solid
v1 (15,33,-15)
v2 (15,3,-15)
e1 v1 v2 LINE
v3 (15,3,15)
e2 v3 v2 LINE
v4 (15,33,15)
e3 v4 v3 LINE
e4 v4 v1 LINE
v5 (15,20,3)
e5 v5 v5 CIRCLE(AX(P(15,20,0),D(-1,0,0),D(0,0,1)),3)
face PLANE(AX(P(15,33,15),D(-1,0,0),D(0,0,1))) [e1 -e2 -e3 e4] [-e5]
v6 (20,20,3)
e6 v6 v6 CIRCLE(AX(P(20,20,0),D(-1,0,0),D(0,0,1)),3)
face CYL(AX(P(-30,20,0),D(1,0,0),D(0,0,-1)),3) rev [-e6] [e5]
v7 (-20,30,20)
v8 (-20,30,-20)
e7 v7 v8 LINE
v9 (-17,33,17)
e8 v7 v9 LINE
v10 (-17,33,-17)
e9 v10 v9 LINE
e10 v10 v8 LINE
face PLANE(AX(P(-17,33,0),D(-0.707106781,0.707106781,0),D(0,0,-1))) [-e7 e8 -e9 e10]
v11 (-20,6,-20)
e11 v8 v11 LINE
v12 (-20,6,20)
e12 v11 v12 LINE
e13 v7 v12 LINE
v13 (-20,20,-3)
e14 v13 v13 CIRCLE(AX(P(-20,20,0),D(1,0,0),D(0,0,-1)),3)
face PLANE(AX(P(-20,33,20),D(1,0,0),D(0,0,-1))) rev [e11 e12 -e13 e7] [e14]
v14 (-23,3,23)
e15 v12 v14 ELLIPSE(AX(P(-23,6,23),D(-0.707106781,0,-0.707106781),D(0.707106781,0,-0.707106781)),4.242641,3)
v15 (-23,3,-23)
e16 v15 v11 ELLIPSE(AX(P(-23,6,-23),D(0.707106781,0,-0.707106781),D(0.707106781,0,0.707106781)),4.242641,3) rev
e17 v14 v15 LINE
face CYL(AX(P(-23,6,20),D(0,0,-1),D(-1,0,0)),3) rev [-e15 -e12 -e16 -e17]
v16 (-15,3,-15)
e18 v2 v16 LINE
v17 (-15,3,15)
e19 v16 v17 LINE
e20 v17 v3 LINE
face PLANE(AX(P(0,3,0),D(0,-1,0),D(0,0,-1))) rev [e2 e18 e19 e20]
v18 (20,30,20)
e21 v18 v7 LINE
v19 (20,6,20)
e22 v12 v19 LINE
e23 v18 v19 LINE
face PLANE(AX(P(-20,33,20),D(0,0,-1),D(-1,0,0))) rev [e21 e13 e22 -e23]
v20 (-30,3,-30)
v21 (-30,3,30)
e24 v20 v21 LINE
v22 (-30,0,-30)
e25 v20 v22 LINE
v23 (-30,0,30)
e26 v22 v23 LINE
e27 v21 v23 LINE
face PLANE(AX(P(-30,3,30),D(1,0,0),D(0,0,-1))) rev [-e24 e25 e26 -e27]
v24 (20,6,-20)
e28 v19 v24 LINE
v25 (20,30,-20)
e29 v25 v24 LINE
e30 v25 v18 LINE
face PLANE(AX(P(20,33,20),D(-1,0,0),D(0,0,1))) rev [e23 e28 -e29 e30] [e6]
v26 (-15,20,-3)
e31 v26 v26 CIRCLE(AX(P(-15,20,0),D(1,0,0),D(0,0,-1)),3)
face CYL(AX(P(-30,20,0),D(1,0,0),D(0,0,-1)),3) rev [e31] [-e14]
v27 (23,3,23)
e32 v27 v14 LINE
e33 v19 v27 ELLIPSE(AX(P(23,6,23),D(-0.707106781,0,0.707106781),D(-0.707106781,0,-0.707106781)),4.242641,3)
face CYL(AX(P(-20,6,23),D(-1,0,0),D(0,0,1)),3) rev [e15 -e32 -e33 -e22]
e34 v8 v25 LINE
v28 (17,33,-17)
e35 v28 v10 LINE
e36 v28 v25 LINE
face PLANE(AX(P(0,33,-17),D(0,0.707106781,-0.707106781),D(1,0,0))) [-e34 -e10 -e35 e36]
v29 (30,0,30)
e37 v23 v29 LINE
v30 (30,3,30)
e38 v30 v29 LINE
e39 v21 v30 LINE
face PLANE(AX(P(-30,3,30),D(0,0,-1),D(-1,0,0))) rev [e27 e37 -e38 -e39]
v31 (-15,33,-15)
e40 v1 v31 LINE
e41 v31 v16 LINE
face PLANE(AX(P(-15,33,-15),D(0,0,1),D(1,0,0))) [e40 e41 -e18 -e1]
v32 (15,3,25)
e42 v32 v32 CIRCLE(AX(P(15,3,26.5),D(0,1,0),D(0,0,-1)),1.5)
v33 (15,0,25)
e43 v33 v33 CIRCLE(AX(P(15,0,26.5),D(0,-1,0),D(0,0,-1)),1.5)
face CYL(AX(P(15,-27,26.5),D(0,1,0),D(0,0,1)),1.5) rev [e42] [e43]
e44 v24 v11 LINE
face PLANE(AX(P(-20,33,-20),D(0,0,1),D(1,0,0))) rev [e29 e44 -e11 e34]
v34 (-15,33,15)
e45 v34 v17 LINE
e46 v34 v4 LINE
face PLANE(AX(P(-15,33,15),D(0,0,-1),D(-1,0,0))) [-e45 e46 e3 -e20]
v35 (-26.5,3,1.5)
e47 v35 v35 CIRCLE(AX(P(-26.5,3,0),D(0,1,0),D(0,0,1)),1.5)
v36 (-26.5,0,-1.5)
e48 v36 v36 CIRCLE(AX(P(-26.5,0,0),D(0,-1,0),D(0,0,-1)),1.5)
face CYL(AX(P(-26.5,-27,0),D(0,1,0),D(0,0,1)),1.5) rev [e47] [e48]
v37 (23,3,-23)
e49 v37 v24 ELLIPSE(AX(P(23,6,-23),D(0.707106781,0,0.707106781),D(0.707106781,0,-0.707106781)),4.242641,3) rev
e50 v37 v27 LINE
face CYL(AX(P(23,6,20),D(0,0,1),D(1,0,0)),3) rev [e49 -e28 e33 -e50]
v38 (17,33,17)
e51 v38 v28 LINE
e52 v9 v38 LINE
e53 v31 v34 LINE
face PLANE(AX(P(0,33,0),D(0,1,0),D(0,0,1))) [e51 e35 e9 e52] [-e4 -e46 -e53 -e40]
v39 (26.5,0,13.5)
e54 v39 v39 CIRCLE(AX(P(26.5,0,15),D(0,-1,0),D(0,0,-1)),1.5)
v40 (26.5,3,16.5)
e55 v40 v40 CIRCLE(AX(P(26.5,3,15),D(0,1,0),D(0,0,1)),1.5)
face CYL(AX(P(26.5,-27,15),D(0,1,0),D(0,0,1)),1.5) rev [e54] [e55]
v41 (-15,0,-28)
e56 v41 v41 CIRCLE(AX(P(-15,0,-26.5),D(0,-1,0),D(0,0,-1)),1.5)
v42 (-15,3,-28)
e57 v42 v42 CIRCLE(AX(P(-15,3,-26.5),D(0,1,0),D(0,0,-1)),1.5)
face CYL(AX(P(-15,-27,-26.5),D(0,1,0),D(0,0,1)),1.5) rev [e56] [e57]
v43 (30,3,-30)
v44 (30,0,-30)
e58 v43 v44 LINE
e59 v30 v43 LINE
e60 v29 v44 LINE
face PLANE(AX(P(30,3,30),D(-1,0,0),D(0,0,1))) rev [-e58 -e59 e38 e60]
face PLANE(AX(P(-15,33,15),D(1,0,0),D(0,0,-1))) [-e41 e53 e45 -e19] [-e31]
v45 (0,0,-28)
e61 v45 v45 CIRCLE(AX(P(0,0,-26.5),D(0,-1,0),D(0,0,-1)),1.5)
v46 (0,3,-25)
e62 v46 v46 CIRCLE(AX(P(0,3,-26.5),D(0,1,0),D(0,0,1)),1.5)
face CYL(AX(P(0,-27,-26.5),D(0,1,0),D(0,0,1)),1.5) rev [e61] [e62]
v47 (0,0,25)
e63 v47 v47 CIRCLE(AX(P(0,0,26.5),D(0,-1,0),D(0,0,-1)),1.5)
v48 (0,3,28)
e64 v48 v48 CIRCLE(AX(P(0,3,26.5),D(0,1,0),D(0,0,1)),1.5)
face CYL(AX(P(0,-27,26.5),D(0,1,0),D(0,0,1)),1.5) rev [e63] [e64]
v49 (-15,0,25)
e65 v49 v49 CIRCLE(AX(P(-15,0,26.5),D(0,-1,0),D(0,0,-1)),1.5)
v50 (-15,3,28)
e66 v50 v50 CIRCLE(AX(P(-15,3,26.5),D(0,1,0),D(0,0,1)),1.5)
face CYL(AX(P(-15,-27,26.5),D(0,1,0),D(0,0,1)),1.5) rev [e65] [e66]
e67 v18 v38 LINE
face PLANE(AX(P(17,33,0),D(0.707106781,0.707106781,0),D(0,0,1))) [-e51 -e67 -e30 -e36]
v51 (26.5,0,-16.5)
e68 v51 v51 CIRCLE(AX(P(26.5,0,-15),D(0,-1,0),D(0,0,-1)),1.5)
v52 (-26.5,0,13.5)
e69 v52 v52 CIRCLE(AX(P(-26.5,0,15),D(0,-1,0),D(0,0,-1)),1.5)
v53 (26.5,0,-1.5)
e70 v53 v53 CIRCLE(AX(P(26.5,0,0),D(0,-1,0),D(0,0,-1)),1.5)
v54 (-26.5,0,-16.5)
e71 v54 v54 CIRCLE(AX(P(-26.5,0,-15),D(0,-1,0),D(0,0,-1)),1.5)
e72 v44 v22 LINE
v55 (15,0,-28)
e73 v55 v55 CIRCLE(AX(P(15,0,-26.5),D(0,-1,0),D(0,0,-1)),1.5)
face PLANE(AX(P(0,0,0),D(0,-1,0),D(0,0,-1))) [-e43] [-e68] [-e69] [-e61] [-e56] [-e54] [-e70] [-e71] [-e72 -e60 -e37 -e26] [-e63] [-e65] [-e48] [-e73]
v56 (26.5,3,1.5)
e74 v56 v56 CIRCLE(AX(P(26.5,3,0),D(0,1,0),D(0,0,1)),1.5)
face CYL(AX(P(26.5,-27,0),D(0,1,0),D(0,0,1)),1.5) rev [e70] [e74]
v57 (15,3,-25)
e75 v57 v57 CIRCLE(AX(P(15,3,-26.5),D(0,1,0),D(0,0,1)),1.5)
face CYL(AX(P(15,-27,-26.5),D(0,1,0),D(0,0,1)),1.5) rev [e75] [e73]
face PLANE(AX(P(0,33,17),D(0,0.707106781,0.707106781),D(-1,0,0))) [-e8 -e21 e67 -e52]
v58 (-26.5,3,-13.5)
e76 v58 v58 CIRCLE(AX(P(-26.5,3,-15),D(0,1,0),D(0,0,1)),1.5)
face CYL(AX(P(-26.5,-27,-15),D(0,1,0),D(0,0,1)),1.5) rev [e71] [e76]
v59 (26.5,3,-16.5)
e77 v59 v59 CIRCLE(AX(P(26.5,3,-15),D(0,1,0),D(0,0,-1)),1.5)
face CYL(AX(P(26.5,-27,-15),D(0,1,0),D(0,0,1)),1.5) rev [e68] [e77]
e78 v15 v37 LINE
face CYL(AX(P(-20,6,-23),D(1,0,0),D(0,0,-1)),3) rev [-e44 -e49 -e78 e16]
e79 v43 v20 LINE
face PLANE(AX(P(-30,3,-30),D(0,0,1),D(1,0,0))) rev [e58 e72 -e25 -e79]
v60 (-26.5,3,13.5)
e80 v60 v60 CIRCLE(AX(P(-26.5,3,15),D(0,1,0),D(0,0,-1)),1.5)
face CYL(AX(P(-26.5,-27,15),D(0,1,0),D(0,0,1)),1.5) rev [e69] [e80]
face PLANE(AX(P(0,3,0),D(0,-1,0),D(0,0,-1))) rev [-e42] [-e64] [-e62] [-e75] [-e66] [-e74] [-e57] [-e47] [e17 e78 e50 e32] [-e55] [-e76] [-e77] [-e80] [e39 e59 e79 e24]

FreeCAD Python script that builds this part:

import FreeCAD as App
import Part
import Sketcher
from FreeCAD import Vector


def edges_at(feature, points):
    """Names of the edges that pass closest to the given points."""
    edges = feature.Shape.Edges
    near = lambda p: min(range(len(edges)), key=lambda i: edges[i].distToShape(Part.Vertex(*p))[0])
    return sorted({f"Edge{near(p) + 1}" for p in points})


def add_polygon(sketch, points):
    """Adds a closed chain of lines whose ends are joined by coincident constraints."""
    first, n = sketch.GeometryCount, len(points)
    for a, b in zip(points, points[1:] + points[:1]):
        sketch.addGeometry(Part.LineSegment(App.Vector(*a, 0), App.Vector(*b, 0)), False)
    for i in range(n):
        sketch.addConstraint(Sketcher.Constraint("Coincident", first + i, 2, first + (i + 1) % n, 1))

doc = App.newDocument("Part")
body = doc.addObject("PartDesign::Body", "Body")

sketch1 = body.newObject("Sketcher::SketchObject", "Sketch")
sketch1.AttachmentSupport = (doc.getObject("XZ_Plane"), [""])
sketch1.MapMode = "FlatFace"
add_polygon(sketch1, [(-30, -30), (-30, 30), (30, 30), (30, -30)])
sketch1.addConstraint(Sketcher.Constraint("Vertical", 0))
sketch1.addConstraint(Sketcher.Constraint("Horizontal", 1))
sketch1.addConstraint(Sketcher.Constraint("Vertical", 2))
sketch1.addConstraint(Sketcher.Constraint("Horizontal", 3))
sketch1.addConstraint(Sketcher.Constraint("Symmetric", 0, 2, 2, 2, -1, 1))
sketch1.addConstraint(Sketcher.Constraint("Equal", 3, 0))
sketch1.addConstraint(Sketcher.Constraint("DistanceX", 1, 1, 1, 2, 60.0))
pad1 = body.newObject("PartDesign::Pad", "Pad")
pad1.Profile = sketch1
pad1.Length = 3
pad1.Reversed = True

sketch2 = body.newObject("Sketcher::SketchObject", "Sketch001")
sketch2.AttachmentSupport = (doc.getObject("XZ_Plane"), [""])
sketch2.MapMode = "FlatFace"
sketch2.AttachmentOffset = App.Placement(Vector(0, 0, -3), App.Rotation())
add_polygon(sketch2, [(-20, -20), (-20, 20), (20, 20), (20, -20)])
add_polygon(sketch2, [(15, 15), (-15, 15), (-15, -15), (15, -15)])
sketch2.addConstraint(Sketcher.Constraint("Vertical", 0))
sketch2.addConstraint(Sketcher.Constraint("Horizontal", 1))
sketch2.addConstraint(Sketcher.Constraint("Vertical", 2))
sketch2.addConstraint(Sketcher.Constraint("Horizontal", 3))
sketch2.addConstraint(Sketcher.Constraint("Horizontal", 4))
sketch2.addConstraint(Sketcher.Constraint("Vertical", 5))
sketch2.addConstraint(Sketcher.Constraint("Horizontal", 6))
sketch2.addConstraint(Sketcher.Constraint("Vertical", 7))
sketch2.addConstraint(Sketcher.Constraint("Symmetric", 0, 2, 2, 2, -1, 1))
sketch2.addConstraint(Sketcher.Constraint("Symmetric", 4, 2, 6, 2, -1, 1))
sketch2.addConstraint(Sketcher.Constraint("Equal", 3, 0))
sketch2.addConstraint(Sketcher.Constraint("Equal", 6, 5))
sketch2.addConstraint(Sketcher.Constraint("DistanceX", 1, 1, 1, 2, 40.0))
sketch2.addConstraint(Sketcher.Constraint("DistanceX", 4, 2, 4, 1, 30.0))
pad2 = body.newObject("PartDesign::Pad", "Pad001")
pad2.Profile = sketch2
pad2.Length = 30
pad2.Reversed = True
doc.recompute()

chamfer = body.newObject("PartDesign::Chamfer", "Chamfer")
chamfer.Base = (pad2, edges_at(pad2, [
    (0, 33, 20),
    (20, 33, 0),
    (0, 33, -20),
    (-20, 33, 0),
]))
chamfer.Size = 3
doc.recompute()

fillet = body.newObject("PartDesign::Fillet", "Fillet")
fillet.Base = (chamfer, edges_at(chamfer, [
    (0, 3, 20),
    (20, 3, 0),
    (0, 3, -20),
    (-20, 3, 0),
]))
fillet.Radius = 3

sketch3 = body.newObject("Sketcher::SketchObject", "Sketch002")
sketch3.AttachmentSupport = (doc.getObject("XZ_Plane"), [""])
sketch3.MapMode = "FlatFace"
sketch3.AttachmentOffset = App.Placement(Vector(0, 0, -3), App.Rotation())
sketch3.addGeometry(Part.Circle(Vector(0, -26.5, 0), Vector(0, 0, 1), 1.5), False)
sketch3.addGeometry(Part.Circle(Vector(15, -26.5, 0), Vector(0, 0, 1), 1.5), False)
sketch3.addGeometry(Part.Circle(Vector(-15, -26.5, 0), Vector(0, 0, 1), 1.5), False)
sketch3.addGeometry(Part.Circle(Vector(26.5, -15, 0), Vector(0, 0, 1), 1.5), False)
sketch3.addGeometry(Part.Circle(Vector(26.5, 0, 0), Vector(0, 0, 1), 1.5), False)
sketch3.addGeometry(Part.Circle(Vector(26.5, 15, 0), Vector(0, 0, 1), 1.5), False)
sketch3.addGeometry(Part.Circle(Vector(15, 26.5, 0), Vector(0, 0, 1), 1.5), False)
sketch3.addGeometry(Part.Circle(Vector(0, 26.5, 0), Vector(0, 0, 1), 1.5), False)
sketch3.addGeometry(Part.Circle(Vector(-15, 26.5, 0), Vector(0, 0, 1), 1.5), False)
sketch3.addGeometry(Part.Circle(Vector(-26.5, 15, 0), Vector(0, 0, 1), 1.5), False)
sketch3.addGeometry(Part.Circle(Vector(-26.5, 0, 0), Vector(0, 0, 1), 1.5), False)
sketch3.addGeometry(Part.Circle(Vector(-26.5, -15, 0), Vector(0, 0, 1), 1.5), False)
sketch3.addConstraint(Sketcher.Constraint("Equal", 0, 1))
sketch3.addConstraint(Sketcher.Constraint("Equal", 1, 2))
sketch3.addConstraint(Sketcher.Constraint("Equal", 2, 3))
sketch3.addConstraint(Sketcher.Constraint("Equal", 3, 4))
sketch3.addConstraint(Sketcher.Constraint("Equal", 4, 5))
sketch3.addConstraint(Sketcher.Constraint("Equal", 5, 6))
sketch3.addConstraint(Sketcher.Constraint("Equal", 6, 7))
sketch3.addConstraint(Sketcher.Constraint("Equal", 7, 8))
sketch3.addConstraint(Sketcher.Constraint("Equal", 8, 9))
sketch3.addConstraint(Sketcher.Constraint("Equal", 9, 10))
sketch3.addConstraint(Sketcher.Constraint("Equal", 10, 11))
sketch3.addConstraint(Sketcher.Constraint("Symmetric", 2, 3, 6, 3, -1, 1))
sketch3.addConstraint(Sketcher.Constraint("Symmetric", 0, 3, 7, 3, -1, 1))
sketch3.addConstraint(Sketcher.Constraint("Symmetric", 1, 3, 8, 3, -1, 1))
sketch3.addConstraint(Sketcher.Constraint("Symmetric", 3, 3, 9, 3, -1, 1))
sketch3.addConstraint(Sketcher.Constraint("Symmetric", 4, 3, 10, 3, -1, 1))
sketch3.addConstraint(Sketcher.Constraint("Symmetric", 5, 3, 11, 3, -1, 1))
sketch3.addConstraint(Sketcher.Constraint("Symmetric", 1, 3, 2, 3, -2))
sketch3.addConstraint(Sketcher.Constraint("Symmetric", 5, 3, 9, 3, -2))
sketch3.addConstraint(Sketcher.Constraint("PointOnObject", 0, 3, -2))
sketch3.addConstraint(Sketcher.Constraint("PointOnObject", 4, 3, -1))
sketch3.addConstraint(Sketcher.Constraint("Horizontal", 0, 3, 1, 3))
sketch3.addConstraint(Sketcher.Constraint("Vertical", 3, 3, 4, 3))
sketch3.addConstraint(Sketcher.Constraint("Diameter", 0, 3.0))
sketch3.addConstraint(Sketcher.Constraint("DistanceX", -1, 1, 1, 3, 15.0))
sketch3.addConstraint(Sketcher.Constraint("DistanceY", 3, 3, -1, 1, 15.0))
sketch3.addConstraint(Sketcher.Constraint("DistanceY", 1, 3, 6, 3, 53.0))
sketch3.addConstraint(Sketcher.Constraint("DistanceX", -1, 1, 3, 3, 26.5))
pocket1 = body.newObject("PartDesign::Pocket", "Pocket")
pocket1.Profile = sketch3
pocket1.Length = 30
pocket1.Reversed = True

sketch4 = body.newObject("Sketcher::SketchObject", "Sketch003")
sketch4.AttachmentSupport = (doc.getObject("YZ_Plane"), [""])
sketch4.MapMode = "FlatFace"
sketch4.addGeometry(Part.Circle(Vector(20, 0, 0), Vector(0, 0, 1), 3), False)
sketch4.addConstraint(Sketcher.Constraint("PointOnObject", 0, 3, -1))
sketch4.addConstraint(Sketcher.Constraint("Diameter", 0, 6.0))
sketch4.addConstraint(Sketcher.Constraint("DistanceX", -1, 1, 0, 3, 20.0))
pocket2 = body.newObject("PartDesign::Pocket", "Pocket001")
pocket2.Profile = sketch4
pocket2.Type = "ThroughAll"
pocket2.Midplane = True

doc.recompute()
